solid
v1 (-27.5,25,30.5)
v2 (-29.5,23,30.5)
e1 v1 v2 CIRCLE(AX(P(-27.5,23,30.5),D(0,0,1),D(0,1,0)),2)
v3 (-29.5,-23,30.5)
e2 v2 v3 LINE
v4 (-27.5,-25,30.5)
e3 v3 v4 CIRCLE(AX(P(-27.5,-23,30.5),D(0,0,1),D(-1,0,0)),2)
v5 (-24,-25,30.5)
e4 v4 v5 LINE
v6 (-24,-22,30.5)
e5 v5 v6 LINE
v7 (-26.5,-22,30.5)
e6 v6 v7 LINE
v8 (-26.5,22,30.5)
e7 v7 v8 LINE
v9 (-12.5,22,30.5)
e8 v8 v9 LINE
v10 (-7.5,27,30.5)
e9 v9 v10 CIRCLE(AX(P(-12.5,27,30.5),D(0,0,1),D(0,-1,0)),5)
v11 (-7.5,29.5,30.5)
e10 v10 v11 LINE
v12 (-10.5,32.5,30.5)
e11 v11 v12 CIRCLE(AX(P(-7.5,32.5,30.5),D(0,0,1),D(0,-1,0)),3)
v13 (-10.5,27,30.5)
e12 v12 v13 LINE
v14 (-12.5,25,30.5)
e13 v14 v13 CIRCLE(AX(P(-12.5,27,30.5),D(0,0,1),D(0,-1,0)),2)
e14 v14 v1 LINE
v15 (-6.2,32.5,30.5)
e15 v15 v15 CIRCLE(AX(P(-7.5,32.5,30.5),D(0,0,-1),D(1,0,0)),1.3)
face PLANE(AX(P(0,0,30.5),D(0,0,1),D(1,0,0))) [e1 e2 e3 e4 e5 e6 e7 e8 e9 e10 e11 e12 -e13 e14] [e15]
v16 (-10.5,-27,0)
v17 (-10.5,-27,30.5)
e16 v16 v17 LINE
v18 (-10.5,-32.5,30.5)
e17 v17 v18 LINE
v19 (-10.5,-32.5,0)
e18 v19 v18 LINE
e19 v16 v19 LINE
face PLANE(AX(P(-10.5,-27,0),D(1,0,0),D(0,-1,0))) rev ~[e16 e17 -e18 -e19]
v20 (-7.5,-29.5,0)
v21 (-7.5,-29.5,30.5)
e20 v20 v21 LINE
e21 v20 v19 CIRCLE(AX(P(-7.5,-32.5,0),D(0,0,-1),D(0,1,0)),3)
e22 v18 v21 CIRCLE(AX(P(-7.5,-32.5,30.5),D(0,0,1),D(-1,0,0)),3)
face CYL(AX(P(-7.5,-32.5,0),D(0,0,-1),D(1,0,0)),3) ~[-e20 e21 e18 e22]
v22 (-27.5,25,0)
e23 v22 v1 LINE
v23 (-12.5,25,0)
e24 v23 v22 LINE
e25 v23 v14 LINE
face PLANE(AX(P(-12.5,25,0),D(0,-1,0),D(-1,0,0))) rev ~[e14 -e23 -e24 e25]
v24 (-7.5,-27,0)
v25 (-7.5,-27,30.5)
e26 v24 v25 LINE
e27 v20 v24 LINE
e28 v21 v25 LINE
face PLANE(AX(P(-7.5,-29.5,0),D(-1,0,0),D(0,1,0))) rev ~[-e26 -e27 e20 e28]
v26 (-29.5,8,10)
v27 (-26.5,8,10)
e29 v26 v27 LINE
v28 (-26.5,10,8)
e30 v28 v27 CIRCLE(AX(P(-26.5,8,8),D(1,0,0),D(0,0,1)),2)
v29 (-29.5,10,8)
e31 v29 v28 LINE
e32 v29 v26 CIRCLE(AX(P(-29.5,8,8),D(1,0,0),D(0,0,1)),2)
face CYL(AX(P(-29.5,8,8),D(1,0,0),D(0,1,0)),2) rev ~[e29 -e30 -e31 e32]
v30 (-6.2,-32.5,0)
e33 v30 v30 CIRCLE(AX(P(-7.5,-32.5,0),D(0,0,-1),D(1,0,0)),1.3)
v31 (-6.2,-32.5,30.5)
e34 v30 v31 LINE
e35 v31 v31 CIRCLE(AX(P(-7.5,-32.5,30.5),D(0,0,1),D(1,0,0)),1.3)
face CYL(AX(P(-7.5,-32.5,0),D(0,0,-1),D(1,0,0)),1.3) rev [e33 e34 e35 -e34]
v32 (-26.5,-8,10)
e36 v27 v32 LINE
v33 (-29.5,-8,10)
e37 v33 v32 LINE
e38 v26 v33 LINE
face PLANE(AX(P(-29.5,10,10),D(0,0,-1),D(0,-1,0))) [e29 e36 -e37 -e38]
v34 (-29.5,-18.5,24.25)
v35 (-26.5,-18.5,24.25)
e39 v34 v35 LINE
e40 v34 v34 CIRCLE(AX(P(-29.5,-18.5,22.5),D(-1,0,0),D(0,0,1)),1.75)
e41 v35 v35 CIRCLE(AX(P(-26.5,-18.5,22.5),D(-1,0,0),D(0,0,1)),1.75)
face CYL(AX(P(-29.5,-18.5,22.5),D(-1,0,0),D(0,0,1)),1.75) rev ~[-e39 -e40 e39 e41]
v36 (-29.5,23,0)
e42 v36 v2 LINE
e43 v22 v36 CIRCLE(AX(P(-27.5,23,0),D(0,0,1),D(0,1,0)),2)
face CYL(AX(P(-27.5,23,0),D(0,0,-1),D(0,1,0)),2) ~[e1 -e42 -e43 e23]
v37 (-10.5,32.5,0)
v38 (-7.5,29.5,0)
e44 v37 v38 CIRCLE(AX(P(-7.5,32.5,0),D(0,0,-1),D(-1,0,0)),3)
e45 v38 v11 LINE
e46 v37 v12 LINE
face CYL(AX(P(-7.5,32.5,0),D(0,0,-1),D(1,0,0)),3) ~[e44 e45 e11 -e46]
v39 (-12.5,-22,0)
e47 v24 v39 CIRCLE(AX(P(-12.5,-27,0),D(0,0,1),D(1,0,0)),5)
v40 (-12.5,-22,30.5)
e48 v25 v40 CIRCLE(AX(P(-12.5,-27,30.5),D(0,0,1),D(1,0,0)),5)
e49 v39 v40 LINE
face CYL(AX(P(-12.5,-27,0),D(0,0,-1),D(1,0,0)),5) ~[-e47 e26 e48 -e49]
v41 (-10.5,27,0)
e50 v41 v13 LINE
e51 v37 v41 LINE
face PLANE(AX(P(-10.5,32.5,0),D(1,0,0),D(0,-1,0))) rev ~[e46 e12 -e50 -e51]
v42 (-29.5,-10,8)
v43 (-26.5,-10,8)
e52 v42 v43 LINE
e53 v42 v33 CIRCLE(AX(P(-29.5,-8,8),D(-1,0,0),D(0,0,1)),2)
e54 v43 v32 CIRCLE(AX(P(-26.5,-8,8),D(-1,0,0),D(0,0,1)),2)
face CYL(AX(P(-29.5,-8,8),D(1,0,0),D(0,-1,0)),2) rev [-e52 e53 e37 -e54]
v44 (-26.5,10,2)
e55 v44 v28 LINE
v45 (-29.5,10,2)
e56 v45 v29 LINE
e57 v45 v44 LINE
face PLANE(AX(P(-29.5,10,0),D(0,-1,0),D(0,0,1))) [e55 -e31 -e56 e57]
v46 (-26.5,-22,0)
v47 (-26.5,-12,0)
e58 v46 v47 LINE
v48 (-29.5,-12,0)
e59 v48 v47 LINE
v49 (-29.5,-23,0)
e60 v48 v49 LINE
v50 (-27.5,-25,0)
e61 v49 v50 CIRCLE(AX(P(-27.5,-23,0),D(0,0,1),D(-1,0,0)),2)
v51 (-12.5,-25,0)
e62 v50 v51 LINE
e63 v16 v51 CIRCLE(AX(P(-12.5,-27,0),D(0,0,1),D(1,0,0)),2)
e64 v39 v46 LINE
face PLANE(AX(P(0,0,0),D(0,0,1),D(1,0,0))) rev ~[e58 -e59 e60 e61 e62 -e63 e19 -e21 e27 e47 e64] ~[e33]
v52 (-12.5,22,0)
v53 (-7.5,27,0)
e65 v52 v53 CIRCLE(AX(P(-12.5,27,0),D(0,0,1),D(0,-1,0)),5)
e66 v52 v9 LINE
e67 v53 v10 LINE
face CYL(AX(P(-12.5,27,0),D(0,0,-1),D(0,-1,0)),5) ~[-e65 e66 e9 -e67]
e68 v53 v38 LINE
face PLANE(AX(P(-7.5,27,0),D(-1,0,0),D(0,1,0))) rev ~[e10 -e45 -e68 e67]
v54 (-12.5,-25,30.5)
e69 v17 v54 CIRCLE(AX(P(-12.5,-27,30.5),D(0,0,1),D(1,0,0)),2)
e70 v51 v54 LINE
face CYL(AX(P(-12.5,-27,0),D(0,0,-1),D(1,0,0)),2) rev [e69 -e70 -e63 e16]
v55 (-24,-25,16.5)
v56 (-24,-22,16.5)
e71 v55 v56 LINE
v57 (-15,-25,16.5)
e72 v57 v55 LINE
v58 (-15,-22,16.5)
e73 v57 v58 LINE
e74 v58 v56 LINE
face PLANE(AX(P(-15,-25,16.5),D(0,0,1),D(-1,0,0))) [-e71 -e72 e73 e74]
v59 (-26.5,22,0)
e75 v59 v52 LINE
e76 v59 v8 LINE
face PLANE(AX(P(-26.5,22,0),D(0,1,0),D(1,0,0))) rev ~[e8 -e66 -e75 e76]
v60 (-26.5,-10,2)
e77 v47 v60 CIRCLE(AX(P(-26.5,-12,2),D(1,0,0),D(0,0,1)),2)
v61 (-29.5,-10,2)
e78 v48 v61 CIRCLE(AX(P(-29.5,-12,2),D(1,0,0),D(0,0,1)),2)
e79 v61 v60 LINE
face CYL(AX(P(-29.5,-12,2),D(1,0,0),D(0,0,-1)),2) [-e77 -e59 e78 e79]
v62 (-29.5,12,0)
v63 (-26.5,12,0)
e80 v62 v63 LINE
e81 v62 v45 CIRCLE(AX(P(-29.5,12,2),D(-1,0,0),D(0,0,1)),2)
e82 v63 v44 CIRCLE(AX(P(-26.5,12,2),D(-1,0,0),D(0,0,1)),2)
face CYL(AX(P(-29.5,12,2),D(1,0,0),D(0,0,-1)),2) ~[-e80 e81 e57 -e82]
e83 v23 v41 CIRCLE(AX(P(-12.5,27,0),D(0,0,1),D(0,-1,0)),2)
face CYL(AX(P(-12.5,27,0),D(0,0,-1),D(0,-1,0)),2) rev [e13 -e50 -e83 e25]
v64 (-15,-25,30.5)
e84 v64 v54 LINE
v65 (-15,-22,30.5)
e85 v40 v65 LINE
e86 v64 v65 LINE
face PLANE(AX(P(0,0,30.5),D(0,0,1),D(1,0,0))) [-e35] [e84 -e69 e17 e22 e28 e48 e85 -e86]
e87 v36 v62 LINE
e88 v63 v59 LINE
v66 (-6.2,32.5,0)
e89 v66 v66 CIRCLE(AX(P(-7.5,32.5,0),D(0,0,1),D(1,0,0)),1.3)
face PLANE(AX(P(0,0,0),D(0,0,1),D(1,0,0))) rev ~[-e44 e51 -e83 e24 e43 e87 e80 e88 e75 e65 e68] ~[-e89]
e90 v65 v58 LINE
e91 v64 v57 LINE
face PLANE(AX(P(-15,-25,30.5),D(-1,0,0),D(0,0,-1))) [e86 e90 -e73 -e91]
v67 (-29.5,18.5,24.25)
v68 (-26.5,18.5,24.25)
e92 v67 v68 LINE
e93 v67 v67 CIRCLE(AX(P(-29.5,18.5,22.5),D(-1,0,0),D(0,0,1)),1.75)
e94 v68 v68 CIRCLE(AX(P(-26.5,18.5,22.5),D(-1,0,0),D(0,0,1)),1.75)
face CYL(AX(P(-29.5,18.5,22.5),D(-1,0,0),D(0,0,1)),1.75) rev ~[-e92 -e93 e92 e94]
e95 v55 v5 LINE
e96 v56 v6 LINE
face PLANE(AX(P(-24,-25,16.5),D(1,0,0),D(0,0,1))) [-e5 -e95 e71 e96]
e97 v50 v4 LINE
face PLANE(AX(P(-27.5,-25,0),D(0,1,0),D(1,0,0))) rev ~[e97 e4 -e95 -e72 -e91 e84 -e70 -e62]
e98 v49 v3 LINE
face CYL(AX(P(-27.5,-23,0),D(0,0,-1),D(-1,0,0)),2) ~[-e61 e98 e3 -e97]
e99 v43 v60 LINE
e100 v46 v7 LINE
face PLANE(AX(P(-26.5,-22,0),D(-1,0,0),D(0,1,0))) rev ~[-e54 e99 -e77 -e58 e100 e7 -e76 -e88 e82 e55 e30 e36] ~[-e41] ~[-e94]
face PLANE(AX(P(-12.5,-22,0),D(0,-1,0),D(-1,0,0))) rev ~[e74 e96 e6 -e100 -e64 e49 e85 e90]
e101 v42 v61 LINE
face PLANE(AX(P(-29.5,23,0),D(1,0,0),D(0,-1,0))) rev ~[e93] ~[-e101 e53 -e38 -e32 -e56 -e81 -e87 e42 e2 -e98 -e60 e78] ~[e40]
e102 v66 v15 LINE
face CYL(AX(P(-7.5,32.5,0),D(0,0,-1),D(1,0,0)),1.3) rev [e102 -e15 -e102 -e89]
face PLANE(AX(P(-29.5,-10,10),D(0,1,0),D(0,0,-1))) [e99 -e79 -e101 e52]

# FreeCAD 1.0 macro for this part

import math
import FreeCAD as App
import Part
import Sketcher
from FreeCAD import Vector


def edges_at(feature, points):
    """Names of the edges that pass closest to the given points."""
    edges = feature.Shape.Edges
    near = lambda p: min(range(len(edges)), key=lambda i: edges[i].distToShape(Part.Vertex(*p))[0])
    return sorted({f"Edge{near(p) + 1}" for p in points})


def add_polygon(sketch, points):
    """Adds a closed chain of lines whose ends are joined by coincident constraints."""
    first, n = sketch.GeometryCount, len(points)
    for a, b in zip(points, points[1:] + points[:1]):
        sketch.addGeometry(Part.LineSegment(App.Vector(*a, 0), App.Vector(*b, 0)), False)
    for i in range(n):
        sketch.addConstraint(Sketcher.Constraint("Coincident", first + i, 2, first + (i + 1) % n, 1))

doc = App.newDocument("Part")
params = doc.addObject("Spreadsheet::Sheet", "Params")
for row, (alias, value) in enumerate([
    ("sketch1_radius", "3 mm"),
    ("sketch1_diameter", "2.6 mm"),
    ("sketch1_radius2", "5 mm"),
    ("sketch1_width", "14 mm"),
    ("sketch1_height", "44 mm"),
    ("pad1_length", "30.5 mm"),
    ("sketch2_width", "20 mm"),
    ("sketch2_height", "10 mm"),
    ("fillet_radius", "2 mm"),
    ("sketch3_width", "9 mm"),
    ("sketch3_height", "14 mm"),
    ("pocket2_length", "3 mm"),
    ("sketch4_diameter", "3.5 mm"),
], start=1):
    params.set(f"A{row}", alias)
    params.set(f"B{row}", "=" + value)
    params.setAlias(f"B{row}", alias)

body = doc.addObject("PartDesign::Body", "Body")

sketch1 = doc.addObject("Sketcher::SketchObject", "Sketch")
body.addObject(sketch1)
sketch1.AttachmentSupport = (doc.XY_Plane, [""])
sketch1.MapMode = "FlatFace"
sketch1.addGeometry([
    Part.LineSegment(Vector(-7.5, -29.5, 0), Vector(-7.5, -27, 0)),
    Part.ArcOfCircle(Part.Circle(Vector(-12.5, -27, 0), Vector(0, 0, 1), 5), math.radians(0), math.radians(90)),
    Part.LineSegment(Vector(-12.5, -22, 0), Vector(-26.5, -22, 0)),
    Part.LineSegment(Vector(-26.5, -22, 0), Vector(-26.5, 22, 0)),
    Part.LineSegment(Vector(-26.5, 22, 0), Vector(-12.5, 22, 0)),
    Part.ArcOfCircle(Part.Circle(Vector(-12.5, 27, 0), Vector(0, 0, 1), 5), math.radians(-90), math.radians(0)),
    Part.LineSegment(Vector(-7.5, 27, 0), Vector(-7.5, 29.5, 0)),
    Part.ArcOfCircle(Part.Circle(Vector(-7.5, 32.5, 0), Vector(0, 0, 1), 3), math.radians(-90), math.radians(180)),
    Part.LineSegment(Vector(-10.5, 32.5, 0), Vector(-10.5, 27, 0)),
    Part.ArcOfCircle(Part.Circle(Vector(-12.5, 27, 0), Vector(0, 0, 1), 2), math.radians(-90), math.radians(0)),
    Part.LineSegment(Vector(-12.5, 25, 0), Vector(-27.5, 25, 0)),
    Part.ArcOfCircle(Part.Circle(Vector(-27.5, 23, 0), Vector(0, 0, 1), 2), math.radians(90), math.radians(180)),
    Part.LineSegment(Vector(-29.5, 23, 0), Vector(-29.5, -23, 0)),
    Part.ArcOfCircle(Part.Circle(Vector(-27.5, -23, 0), Vector(0, 0, 1), 2), math.radians(180), math.radians(270)),
    Part.LineSegment(Vector(-27.5, -25, 0), Vector(-12.5, -25, 0)),
    Part.ArcOfCircle(Part.Circle(Vector(-12.5, -27, 0), Vector(0, 0, 1), 2), math.radians(0), math.radians(90)),
    Part.LineSegment(Vector(-10.5, -27, 0), Vector(-10.5, -32.5, 0)),
    Part.ArcOfCircle(Part.Circle(Vector(-7.5, -32.5, 0), Vector(0, 0, 1), 3), math.radians(180), math.radians(450)),
    Part.Circle(Vector(-7.5, -32.5, 0), Vector(0, 0, 1), 1.3),
    Part.Circle(Vector(-7.5, 32.5, 0), Vector(0, 0, 1), 1.3),
], False)
sketch1.addConstraint([
    Sketcher.Constraint("Tangent", 0, 2, 1, 1),
    Sketcher.Constraint("Tangent", 1, 2, 2, 1),
    Sketcher.Constraint("Coincident", 2, 2, 3, 1),
    Sketcher.Constraint("Coincident", 3, 2, 4, 1),
    Sketcher.Constraint("Tangent", 4, 2, 5, 1),
    Sketcher.Constraint("Tangent", 5, 2, 6, 1),
    Sketcher.Constraint("Coincident", 6, 2, 7, 1),
    Sketcher.Constraint("Tangent", 7, 2, 8, 1),
    Sketcher.Constraint("Tangent", 8, 2, 9, 2),
    Sketcher.Constraint("Tangent", 9, 1, 10, 1),
    Sketcher.Constraint("Tangent", 10, 2, 11, 1),
    Sketcher.Constraint("Tangent", 11, 2, 12, 1),
    Sketcher.Constraint("Tangent", 12, 2, 13, 1),
    Sketcher.Constraint("Tangent", 13, 2, 14, 1),
    Sketcher.Constraint("Tangent", 14, 2, 15, 2),
    Sketcher.Constraint("Tangent", 15, 1, 16, 1),
    Sketcher.Constraint("Tangent", 16, 2, 17, 1),
    Sketcher.Constraint("Coincident", 17, 2, 0, 1),
    Sketcher.Constraint("Vertical", 0),
    Sketcher.Constraint("Horizontal", 2),
    Sketcher.Constraint("Vertical", 3),
    Sketcher.Constraint("Horizontal", 4),
    Sketcher.Constraint("Vertical", 6),
    Sketcher.Constraint("Vertical", 8),
    Sketcher.Constraint("Horizontal", 10),
    Sketcher.Constraint("Vertical", 12),
    Sketcher.Constraint("Horizontal", 14),
    Sketcher.Constraint("Vertical", 16),
    Sketcher.Constraint("Coincident", 9, 3, 5, 3),
    Sketcher.Constraint("Coincident", 15, 3, 1, 3),
    Sketcher.Constraint("Coincident", 18, 3, 17, 3),
    Sketcher.Constraint("Coincident", 19, 3, 7, 3),
    Sketcher.Constraint("Equal", 1, 5),
    Sketcher.Constraint("Equal", 9, 11),
    Sketcher.Constraint("Equal", 11, 13),
    Sketcher.Constraint("Equal", 13, 15),
    Sketcher.Constraint("Equal", 7, 17),
    Sketcher.Constraint("Equal", 18, 19),
    Sketcher.Constraint("Symmetric", 1, 3, 5, 3, -1),
    Sketcher.Constraint("Vertical", 19, 3, 0, 2),
    Sketcher.Constraint("Equal", 0, 6),
    Sketcher.Constraint("Radius", 7, 3.0),
    Sketcher.Constraint("Diameter", 18, 2.6),
    Sketcher.Constraint("Radius", 1, 5.0),
    Sketcher.Constraint("DistanceX", 11, 2, 3, 2, 3.0),
    Sketcher.Constraint("DistanceX", 2, 2, 2, 1, 14.0),
    Sketcher.Constraint("DistanceY", 3, 1, 3, 2, 44.0),
    Sketcher.Constraint("DistanceY", 0, 1, 0, 2, 2.5),
    Sketcher.Constraint("DistanceX", 1, 3, -1, 1, 12.5),
])
sketch1.setExpression("Constraints[41]", "Params.sketch1_radius")
sketch1.setExpression("Constraints[42]", "Params.sketch1_diameter")
sketch1.setExpression("Constraints[43]", "Params.sketch1_radius2")
sketch1.setExpression("Constraints[45]", "Params.sketch1_width")
sketch1.setExpression("Constraints[46]", "Params.sketch1_height")
pad1 = doc.addObject("PartDesign::Pad", "Pad")
body.addObject(pad1)
pad1.Profile = sketch1
pad1.setExpression("Length", "Params.pad1_length")

sketch2 = doc.addObject("Sketcher::SketchObject", "Sketch001")
body.addObject(sketch2)
sketch2.AttachmentSupport = (doc.YZ_Plane, [""])
sketch2.MapMode = "FlatFace"
sketch2.AttachmentOffset = App.Placement(Vector(0, 0, -29.5), App.Rotation())
add_polygon(sketch2, [(10, 10), (10, 0), (-10, 0), (-10, 10)])
sketch2.addConstraint([
    Sketcher.Constraint("Vertical", 0),
    Sketcher.Constraint("Horizontal", 1),
    Sketcher.Constraint("Vertical", 2),
    Sketcher.Constraint("Horizontal", 3),
    Sketcher.Constraint("Symmetric", 0, 2, 1, 2, -1, 1),
    Sketcher.Constraint("DistanceX", 1, 2, 1, 1, 20.0),
    Sketcher.Constraint("DistanceY", 0, 2, 0, 1, 10.0),
])
sketch2.setExpression("Constraints[9]", "Params.sketch2_width")
sketch2.setExpression("Constraints[10]", "Params.sketch2_height")
pocket1 = doc.addObject("PartDesign::Pocket", "Pocket")
body.addObject(pocket1)
pocket1.Profile = sketch2
pocket1.Type = "ThroughAll"
pocket1.Reversed = True
doc.recompute()

fillet = doc.addObject("PartDesign::Fillet", "Fillet")
body.addObject(fillet)
fillet.Base = (pocket1, edges_at(pocket1, [
    (-28, 10, 10),
    (-28, 10, 0),
    (-28, -10, 10),
    (-28, -10, 0),
]))
fillet.setExpression("Radius", "Params.fillet_radius")

sketch3 = doc.addObject("Sketcher::SketchObject", "Sketch002")
body.addObject(sketch3)
sketch3.AttachmentSupport = (doc.XZ_Plane, [""])
sketch3.MapMode = "FlatFace"
sketch3.AttachmentOffset = App.Placement(Vector(0, 0, 25), App.Rotation())
add_polygon(sketch3, [(-15, 16), (-15, 30), (-24, 30), (-24, 16)])
sketch3.addConstraint([
    Sketcher.Constraint("Vertical", 0),
    Sketcher.Constraint("Horizontal", 1),
    Sketcher.Constraint("Vertical", 2),
    Sketcher.Constraint("Horizontal", 3),
    Sketcher.Constraint("DistanceX", 1, 2, 1, 1, 9.0),
    Sketcher.Constraint("DistanceY", 0, 1, 0, 2, 14.0),
    Sketcher.Constraint("DistanceX", 0, 2, -1, 1, 15.0),
    Sketcher.Constraint("DistanceY", -1, 1, 0, 2, 30.5),
])
sketch3.setExpression("Constraints[8]", "Params.sketch3_width")
sketch3.setExpression("Constraints[9]", "Params.sketch3_height")
pocket2 = doc.addObject("PartDesign::Pocket", "Pocket001")
body.addObject(pocket2)
pocket2.Profile = sketch3
pocket2.setExpression("Length", "Params.pocket2_length")

sketch4 = doc.addObject("Sketcher::SketchObject", "Sketch003")
body.addObject(sketch4)
sketch4.AttachmentSupport = (doc.YZ_Plane, [""])
sketch4.MapMode = "FlatFace"
sketch4.AttachmentOffset = App.Placement(Vector(0, 0, -29.5), App.Rotation())
sketch4.addGeometry([
    Part.Circle(Vector(18.5, 22.5, 0), Vector(0, 0, 1), 1.8),
    Part.Circle(Vector(-18.5, 22.5, 0), Vector(0, 0, 1), 1.8),
], False)
sketch4.addConstraint([
    Sketcher.Constraint("Equal", 0, 1),
    Sketcher.Constraint("Symmetric", 0, 3, 1, 3, -2),
    Sketcher.Constraint("Diameter", 0, 3.5),
    Sketcher.Constraint("DistanceX", 1, 3, 0, 3, 37.0),
    Sketcher.Constraint("DistanceY", -1, 1, 0, 3, 22.5),
])
sketch4.setExpression("Constraints[2]", "Params.sketch4_diameter")
pocket3 = doc.addObject("PartDesign::Pocket", "Pocket002")
body.addObject(pocket3)
pocket3.Profile = sketch4
pocket3.Type = "ThroughAll"
pocket3.Reversed = True

doc.recompute()
